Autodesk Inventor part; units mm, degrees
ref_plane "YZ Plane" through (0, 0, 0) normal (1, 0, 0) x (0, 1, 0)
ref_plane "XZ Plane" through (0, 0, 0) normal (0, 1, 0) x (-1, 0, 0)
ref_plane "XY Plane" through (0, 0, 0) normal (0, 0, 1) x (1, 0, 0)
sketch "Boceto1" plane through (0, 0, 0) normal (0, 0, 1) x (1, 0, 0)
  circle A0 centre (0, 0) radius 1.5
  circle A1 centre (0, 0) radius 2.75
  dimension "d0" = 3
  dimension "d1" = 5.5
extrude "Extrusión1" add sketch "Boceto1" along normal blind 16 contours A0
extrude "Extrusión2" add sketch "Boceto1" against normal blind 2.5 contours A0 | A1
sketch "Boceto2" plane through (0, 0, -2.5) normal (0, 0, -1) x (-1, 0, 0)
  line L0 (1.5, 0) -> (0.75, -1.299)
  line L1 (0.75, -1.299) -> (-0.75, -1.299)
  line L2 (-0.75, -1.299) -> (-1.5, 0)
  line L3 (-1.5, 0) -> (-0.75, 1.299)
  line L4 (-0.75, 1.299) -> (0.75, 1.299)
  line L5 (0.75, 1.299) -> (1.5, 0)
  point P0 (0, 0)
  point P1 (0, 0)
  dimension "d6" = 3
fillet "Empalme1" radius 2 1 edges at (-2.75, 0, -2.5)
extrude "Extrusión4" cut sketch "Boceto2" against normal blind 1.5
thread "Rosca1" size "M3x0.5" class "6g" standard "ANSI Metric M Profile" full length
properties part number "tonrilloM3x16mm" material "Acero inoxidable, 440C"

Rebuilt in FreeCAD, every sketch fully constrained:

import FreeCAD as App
import Part
import Sketcher
Q = App.Units.Quantity


def edges_at(feature, points):
    """Names of the edges that pass closest to the given points."""
    edges = feature.Shape.Edges
    near = lambda p: min(range(len(edges)), key=lambda i: edges[i].distToShape(Part.Vertex(*p))[0])
    return sorted({f"Edge{near(p) + 1}" for p in points})


def add_polygon(sketch, points):
    """Adds a closed chain of lines whose ends are joined by coincident constraints."""
    first, n = sketch.GeometryCount, len(points)
    for a, b in zip(points, points[1:] + points[:1]):
        sketch.addGeometry(Part.LineSegment(App.Vector(*a, 0), App.Vector(*b, 0)), False)
    for i in range(n):
        sketch.addConstraint(Sketcher.Constraint("Coincident", first + i, 2, first + (i + 1) % n, 1))

doc = App.newDocument("Part")
body = doc.addObject("PartDesign::Body", "Body")

# Sketch on XY plane
sketch1 = body.newObject("Sketcher::SketchObject", "Sketch")
sketch1.AttachmentSupport = (doc.getObject("XY_Plane"), [""])
sketch1.MapMode = "FlatFace"
sketch1.addGeometry(Part.Circle(App.Vector(0, 0, 0), App.Vector(0, 0, 1), 1.5), False)
sketch1.addConstraint(Sketcher.Constraint("Coincident", 0, 3, -1, 1))
sketch1.addConstraint(Sketcher.Constraint("Diameter", 0, 3.0))
pad1 = body.newObject("PartDesign::Pad", "Pad")
pad1.Profile = sketch1
pad1.Length = 16

# Sketch on XY plane
sketch2 = body.newObject("Sketcher::SketchObject", "Sketch001")
sketch2.AttachmentSupport = (doc.getObject("XY_Plane"), [""])
sketch2.MapMode = "FlatFace"
sketch2.addGeometry(Part.Circle(App.Vector(0, 0, 0), App.Vector(0, 0, 1), 2.8), False)
sketch2.addConstraint(Sketcher.Constraint("Coincident", 0, 3, -1, 1))
sketch2.addConstraint(Sketcher.Constraint("Diameter", 0, 5.5))
pad2 = body.newObject("PartDesign::Pad", "Pad001")
pad2.Profile = sketch2
pad2.Length = 2.5
pad2.Reversed = True
doc.recompute()

fillet = body.newObject("PartDesign::Fillet", "Fillet")
fillet.Base = (pad2, edges_at(pad2, [(-2.75, 0, -2.5)]))
fillet.Radius = 2

# Sketch on XY plane
sketch3 = body.newObject("Sketcher::SketchObject", "Sketch002")
sketch3.AttachmentSupport = (doc.getObject("XY_Plane"), [""])
sketch3.MapMode = "FlatFace"
sketch3.AttachmentOffset = App.Placement(App.Vector(0, 0, -2.5), App.Rotation())
add_polygon(sketch3, [(-0.8, -1.3), (-1.5, 0), (-0.8, 1.3), (0.8, 1.3), (1.5, 0), (0.8, -1.3)])  # lines 0-5
sketch3.addConstraint(Sketcher.Constraint("Horizontal", 2))
sketch3.addConstraint(Sketcher.Constraint("Horizontal", 5))
sketch3.addConstraint(Sketcher.Constraint("Symmetric", 0, 2, 3, 2, -1, 1))
sketch3.addConstraint(Sketcher.Constraint("Symmetric", 1, 2, 4, 2, -1, 1))
sketch3.addConstraint(Sketcher.Constraint("PointOnObject", 0, 2, -1))
sketch3.addConstraint(Sketcher.Constraint("Parallel", 0, 3))
sketch3.addConstraint(Sketcher.Constraint("Vertical", 2, 2, 4, 2))
sketch3.addConstraint(Sketcher.Constraint("DistanceX", 0, 2, 3, 2, 3.0))
sketch3.addConstraint(Sketcher.Constraint("Angle", 0, Q("120.0007 deg")))
sketch3.addConstraint(Sketcher.Constraint("DistanceX", 2, 1, 2, 2, 1.5))
pocket1 = body.newObject("PartDesign::Pocket", "Pocket")
pocket1.Profile = sketch3
pocket1.Length = 1.5
pocket1.Reversed = True

doc.recompute()
